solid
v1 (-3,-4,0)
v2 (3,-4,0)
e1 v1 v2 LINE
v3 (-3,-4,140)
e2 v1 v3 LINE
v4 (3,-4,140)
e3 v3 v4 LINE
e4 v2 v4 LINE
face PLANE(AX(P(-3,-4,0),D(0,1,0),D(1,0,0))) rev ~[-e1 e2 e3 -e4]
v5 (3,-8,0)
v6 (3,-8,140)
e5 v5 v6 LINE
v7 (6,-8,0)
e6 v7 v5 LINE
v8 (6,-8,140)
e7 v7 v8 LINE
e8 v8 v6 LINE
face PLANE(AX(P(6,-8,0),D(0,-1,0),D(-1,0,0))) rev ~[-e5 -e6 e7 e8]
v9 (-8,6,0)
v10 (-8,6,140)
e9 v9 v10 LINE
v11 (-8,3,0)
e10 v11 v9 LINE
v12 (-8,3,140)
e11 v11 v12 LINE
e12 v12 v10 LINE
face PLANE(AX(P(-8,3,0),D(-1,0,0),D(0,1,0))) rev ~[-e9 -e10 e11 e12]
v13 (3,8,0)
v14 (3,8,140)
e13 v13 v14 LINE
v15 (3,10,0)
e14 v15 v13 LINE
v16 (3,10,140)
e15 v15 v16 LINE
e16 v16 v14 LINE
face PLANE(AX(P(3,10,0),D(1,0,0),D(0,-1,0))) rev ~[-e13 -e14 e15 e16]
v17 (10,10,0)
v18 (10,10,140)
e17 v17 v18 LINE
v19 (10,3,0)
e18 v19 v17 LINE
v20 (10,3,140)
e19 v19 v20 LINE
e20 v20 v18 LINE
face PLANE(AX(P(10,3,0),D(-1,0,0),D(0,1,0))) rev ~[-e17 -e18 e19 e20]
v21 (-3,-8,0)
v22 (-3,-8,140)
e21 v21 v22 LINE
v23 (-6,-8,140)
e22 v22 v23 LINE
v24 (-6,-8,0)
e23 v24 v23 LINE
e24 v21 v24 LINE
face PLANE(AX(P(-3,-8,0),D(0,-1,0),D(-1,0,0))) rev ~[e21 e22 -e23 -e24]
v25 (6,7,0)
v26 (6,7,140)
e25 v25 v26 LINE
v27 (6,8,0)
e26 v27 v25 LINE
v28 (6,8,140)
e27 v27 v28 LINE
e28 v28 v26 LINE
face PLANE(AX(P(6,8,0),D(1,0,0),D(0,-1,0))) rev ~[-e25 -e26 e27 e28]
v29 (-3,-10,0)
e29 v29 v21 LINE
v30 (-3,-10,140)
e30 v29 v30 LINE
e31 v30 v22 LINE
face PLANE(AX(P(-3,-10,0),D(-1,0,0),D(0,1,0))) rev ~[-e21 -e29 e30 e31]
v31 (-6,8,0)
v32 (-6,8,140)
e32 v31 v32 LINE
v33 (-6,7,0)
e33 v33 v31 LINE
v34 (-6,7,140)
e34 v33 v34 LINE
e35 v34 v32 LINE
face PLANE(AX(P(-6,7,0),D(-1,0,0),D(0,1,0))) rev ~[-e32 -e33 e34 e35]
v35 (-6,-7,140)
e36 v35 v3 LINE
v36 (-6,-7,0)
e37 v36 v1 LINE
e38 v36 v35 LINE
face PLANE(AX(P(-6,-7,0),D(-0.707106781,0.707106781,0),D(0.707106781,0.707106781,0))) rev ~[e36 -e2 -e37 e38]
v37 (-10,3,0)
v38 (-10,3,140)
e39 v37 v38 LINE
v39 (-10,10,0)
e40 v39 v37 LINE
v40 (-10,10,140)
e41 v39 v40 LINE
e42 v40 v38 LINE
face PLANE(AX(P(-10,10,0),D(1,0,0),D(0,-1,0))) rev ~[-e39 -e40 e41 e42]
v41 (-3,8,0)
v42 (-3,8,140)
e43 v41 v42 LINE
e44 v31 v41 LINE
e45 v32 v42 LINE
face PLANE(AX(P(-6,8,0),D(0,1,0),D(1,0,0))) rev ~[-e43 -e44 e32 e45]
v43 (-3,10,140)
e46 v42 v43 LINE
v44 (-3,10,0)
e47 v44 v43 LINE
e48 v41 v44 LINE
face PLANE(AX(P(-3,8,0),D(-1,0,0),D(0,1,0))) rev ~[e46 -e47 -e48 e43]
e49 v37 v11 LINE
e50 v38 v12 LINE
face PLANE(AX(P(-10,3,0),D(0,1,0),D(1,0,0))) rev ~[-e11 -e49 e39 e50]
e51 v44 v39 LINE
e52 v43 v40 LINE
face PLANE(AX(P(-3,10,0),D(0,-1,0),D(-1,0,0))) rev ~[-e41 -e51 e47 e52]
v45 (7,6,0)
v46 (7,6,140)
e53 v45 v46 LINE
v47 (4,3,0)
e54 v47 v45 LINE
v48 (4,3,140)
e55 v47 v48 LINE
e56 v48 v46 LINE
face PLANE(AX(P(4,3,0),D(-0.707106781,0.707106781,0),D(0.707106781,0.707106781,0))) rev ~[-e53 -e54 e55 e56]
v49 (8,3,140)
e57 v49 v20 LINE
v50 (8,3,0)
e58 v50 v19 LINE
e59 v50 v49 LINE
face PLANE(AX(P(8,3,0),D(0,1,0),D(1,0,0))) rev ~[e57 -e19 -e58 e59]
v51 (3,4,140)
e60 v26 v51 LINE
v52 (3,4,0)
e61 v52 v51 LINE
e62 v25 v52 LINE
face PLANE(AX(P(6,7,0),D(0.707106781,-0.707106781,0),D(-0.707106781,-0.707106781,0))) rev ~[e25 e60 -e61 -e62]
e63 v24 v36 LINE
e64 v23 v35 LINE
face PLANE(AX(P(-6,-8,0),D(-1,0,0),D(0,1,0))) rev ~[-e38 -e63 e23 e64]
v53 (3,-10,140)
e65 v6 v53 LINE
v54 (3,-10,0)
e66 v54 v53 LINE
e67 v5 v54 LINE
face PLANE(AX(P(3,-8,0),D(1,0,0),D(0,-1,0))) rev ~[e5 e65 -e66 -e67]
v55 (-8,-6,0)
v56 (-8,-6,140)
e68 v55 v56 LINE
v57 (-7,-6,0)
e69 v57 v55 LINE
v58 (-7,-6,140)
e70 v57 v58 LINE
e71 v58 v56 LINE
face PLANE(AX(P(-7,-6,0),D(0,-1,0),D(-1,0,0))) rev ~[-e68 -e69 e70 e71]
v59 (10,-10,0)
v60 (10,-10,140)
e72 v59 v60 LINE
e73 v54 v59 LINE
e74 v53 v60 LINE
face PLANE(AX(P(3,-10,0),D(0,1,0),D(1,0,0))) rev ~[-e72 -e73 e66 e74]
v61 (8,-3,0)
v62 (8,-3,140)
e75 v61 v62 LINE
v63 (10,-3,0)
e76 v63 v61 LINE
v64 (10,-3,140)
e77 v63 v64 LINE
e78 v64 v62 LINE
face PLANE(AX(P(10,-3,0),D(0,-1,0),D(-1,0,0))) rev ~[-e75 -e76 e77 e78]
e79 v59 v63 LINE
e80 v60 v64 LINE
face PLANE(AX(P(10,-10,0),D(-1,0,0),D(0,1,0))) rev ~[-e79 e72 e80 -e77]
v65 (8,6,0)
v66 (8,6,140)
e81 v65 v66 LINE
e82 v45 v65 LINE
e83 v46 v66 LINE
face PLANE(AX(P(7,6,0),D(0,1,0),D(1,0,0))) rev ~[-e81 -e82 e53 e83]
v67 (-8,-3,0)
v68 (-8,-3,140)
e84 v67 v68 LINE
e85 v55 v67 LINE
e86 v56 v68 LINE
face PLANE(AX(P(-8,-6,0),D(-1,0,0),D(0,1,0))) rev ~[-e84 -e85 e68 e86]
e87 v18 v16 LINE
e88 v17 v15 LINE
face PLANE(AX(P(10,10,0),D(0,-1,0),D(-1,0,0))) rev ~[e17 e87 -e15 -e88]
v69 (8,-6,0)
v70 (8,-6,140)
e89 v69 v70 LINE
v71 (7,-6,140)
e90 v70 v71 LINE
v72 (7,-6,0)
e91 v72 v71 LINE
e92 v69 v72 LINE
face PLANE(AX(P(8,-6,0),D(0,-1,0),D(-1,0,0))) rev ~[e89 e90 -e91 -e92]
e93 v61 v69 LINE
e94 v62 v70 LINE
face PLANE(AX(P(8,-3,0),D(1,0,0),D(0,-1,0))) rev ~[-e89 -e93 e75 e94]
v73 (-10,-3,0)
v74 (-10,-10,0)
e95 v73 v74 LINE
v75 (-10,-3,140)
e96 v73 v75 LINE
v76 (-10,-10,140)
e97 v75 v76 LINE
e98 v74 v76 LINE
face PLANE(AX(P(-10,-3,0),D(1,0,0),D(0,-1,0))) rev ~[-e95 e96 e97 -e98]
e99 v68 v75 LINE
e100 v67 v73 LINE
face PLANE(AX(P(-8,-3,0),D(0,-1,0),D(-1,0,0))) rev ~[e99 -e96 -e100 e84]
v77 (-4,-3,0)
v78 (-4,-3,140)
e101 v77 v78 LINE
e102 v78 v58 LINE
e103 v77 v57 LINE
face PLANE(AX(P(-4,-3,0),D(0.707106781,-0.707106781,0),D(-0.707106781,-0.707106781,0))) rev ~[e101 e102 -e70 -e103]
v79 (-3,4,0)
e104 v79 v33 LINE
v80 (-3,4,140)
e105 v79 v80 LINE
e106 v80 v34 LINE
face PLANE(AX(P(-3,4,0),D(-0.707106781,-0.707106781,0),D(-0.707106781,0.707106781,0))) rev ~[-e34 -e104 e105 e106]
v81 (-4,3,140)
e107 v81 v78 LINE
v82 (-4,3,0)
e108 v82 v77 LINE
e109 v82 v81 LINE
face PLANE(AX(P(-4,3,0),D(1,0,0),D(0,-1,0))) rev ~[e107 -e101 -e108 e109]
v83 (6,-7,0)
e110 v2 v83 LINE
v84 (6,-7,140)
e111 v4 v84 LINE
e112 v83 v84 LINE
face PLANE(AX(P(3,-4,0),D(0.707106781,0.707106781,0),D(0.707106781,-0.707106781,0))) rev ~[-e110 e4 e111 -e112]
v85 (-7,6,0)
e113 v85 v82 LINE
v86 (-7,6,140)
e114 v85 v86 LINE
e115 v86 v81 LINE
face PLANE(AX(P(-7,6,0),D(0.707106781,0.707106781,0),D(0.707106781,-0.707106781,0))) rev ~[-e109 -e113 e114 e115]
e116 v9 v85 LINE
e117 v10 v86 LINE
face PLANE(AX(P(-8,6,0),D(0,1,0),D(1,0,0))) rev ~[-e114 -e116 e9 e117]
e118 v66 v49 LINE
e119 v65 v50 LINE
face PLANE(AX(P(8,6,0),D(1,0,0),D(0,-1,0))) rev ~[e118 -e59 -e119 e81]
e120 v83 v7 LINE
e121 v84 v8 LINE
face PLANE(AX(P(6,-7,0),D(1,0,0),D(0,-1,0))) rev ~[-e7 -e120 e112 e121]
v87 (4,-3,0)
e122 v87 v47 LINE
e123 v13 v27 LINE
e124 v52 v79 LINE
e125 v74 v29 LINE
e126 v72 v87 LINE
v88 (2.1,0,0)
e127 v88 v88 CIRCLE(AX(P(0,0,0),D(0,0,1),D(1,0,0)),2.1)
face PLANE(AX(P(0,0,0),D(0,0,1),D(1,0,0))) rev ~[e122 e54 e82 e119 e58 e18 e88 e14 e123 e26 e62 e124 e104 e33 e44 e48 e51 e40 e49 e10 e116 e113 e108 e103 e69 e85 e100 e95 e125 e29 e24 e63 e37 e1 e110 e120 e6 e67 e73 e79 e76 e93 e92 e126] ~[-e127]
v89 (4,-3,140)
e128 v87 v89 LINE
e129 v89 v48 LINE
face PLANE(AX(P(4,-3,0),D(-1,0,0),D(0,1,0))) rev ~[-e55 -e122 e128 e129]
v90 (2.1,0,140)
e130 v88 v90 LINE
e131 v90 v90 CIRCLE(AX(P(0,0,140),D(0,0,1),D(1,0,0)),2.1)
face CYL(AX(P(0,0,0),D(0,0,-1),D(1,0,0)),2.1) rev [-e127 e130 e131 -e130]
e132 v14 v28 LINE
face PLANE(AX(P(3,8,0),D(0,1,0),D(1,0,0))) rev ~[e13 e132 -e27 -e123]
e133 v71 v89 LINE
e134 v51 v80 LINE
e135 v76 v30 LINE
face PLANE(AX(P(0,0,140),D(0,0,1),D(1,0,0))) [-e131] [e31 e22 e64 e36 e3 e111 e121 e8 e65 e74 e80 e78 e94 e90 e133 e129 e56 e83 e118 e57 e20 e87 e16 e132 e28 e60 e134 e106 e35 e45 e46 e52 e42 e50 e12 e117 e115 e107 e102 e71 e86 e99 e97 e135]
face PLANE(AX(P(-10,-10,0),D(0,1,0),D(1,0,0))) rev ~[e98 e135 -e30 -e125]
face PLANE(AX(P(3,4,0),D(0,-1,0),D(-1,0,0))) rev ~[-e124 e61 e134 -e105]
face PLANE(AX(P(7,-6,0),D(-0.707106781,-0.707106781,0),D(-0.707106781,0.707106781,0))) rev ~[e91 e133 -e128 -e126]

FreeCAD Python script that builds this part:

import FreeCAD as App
import Part
import Sketcher
Q = App.Units.Quantity

doc = App.newDocument("Part")
body = doc.addObject("PartDesign::Body", "Body")

sketch1 = body.newObject("Sketcher::SketchObject", "Sketch")
sketch1.AttachmentSupport = (doc.getObject("XY_Plane"), [""])
sketch1.MapMode = "FlatFace"
sketch1.addGeometry([
    Part.LineSegment(App.Vector(3, 4, 0), App.Vector(-3, 4, 0)),
    Part.LineSegment(App.Vector(-3, 4, 0), App.Vector(-6, 7, 0)),
    Part.LineSegment(App.Vector(-6, 7, 0), App.Vector(-6, 8, 0)),
    Part.LineSegment(App.Vector(-6, 8, 0), App.Vector(-3, 8, 0)),
    Part.LineSegment(App.Vector(-3, 8, 0), App.Vector(-3, 10, 0)),
    Part.LineSegment(App.Vector(-3, 10, 0), App.Vector(-10, 10, 0)),
    Part.LineSegment(App.Vector(-10, 10, 0), App.Vector(-10, 3, 0)),
    Part.LineSegment(App.Vector(-10, 3, 0), App.Vector(-8, 3, 0)),
    Part.LineSegment(App.Vector(-8, 3, 0), App.Vector(-8, 6, 0)),
    Part.LineSegment(App.Vector(-8, 6, 0), App.Vector(-7, 6, 0)),
    Part.LineSegment(App.Vector(-7, 6, 0), App.Vector(-4, 3, 0)),
    Part.LineSegment(App.Vector(-4, 3, 0), App.Vector(-4, -3, 0)),
    Part.LineSegment(App.Vector(-4, -3, 0), App.Vector(-7, -6, 0)),
    Part.LineSegment(App.Vector(-7, -6, 0), App.Vector(-8, -6, 0)),
    Part.LineSegment(App.Vector(-8, -6, 0), App.Vector(-8, -3, 0)),
    Part.LineSegment(App.Vector(-8, -3, 0), App.Vector(-10, -3, 0)),
    Part.LineSegment(App.Vector(-10, -3, 0), App.Vector(-10, -10, 0)),
    Part.LineSegment(App.Vector(-10, -10, 0), App.Vector(-3, -10, 0)),
    Part.LineSegment(App.Vector(-3, -10, 0), App.Vector(-3, -8, 0)),
    Part.LineSegment(App.Vector(-3, -8, 0), App.Vector(-6, -8, 0)),
    Part.LineSegment(App.Vector(-6, -8, 0), App.Vector(-6, -7, 0)),
    Part.LineSegment(App.Vector(-6, -7, 0), App.Vector(-3, -4, 0)),
    Part.LineSegment(App.Vector(-3, -4, 0), App.Vector(3, -4, 0)),
    Part.LineSegment(App.Vector(3, -4, 0), App.Vector(6, -7, 0)),
    Part.LineSegment(App.Vector(6, -7, 0), App.Vector(6, -8, 0)),
    Part.LineSegment(App.Vector(6, -8, 0), App.Vector(3, -8, 0)),
    Part.LineSegment(App.Vector(3, -8, 0), App.Vector(3, -10, 0)),
    Part.LineSegment(App.Vector(3, -10, 0), App.Vector(10, -10, 0)),
    Part.LineSegment(App.Vector(10, -10, 0), App.Vector(10, -3, 0)),
    Part.LineSegment(App.Vector(10, -3, 0), App.Vector(8, -3, 0)),
    Part.LineSegment(App.Vector(8, -3, 0), App.Vector(8, -6, 0)),
    Part.LineSegment(App.Vector(8, -6, 0), App.Vector(7, -6, 0)),
    Part.LineSegment(App.Vector(7, -6, 0), App.Vector(4, -3, 0)),
    Part.LineSegment(App.Vector(4, -3, 0), App.Vector(4, 3, 0)),
    Part.LineSegment(App.Vector(4, 3, 0), App.Vector(7, 6, 0)),
    Part.LineSegment(App.Vector(7, 6, 0), App.Vector(8, 6, 0)),
    Part.LineSegment(App.Vector(8, 6, 0), App.Vector(8, 3, 0)),
    Part.LineSegment(App.Vector(8, 3, 0), App.Vector(10, 3, 0)),
    Part.LineSegment(App.Vector(10, 3, 0), App.Vector(10, 10, 0)),
    Part.LineSegment(App.Vector(10, 10, 0), App.Vector(3, 10, 0)),
    Part.LineSegment(App.Vector(3, 10, 0), App.Vector(3, 8, 0)),
    Part.LineSegment(App.Vector(3, 8, 0), App.Vector(6, 8, 0)),
    Part.LineSegment(App.Vector(6, 8, 0), App.Vector(6, 7, 0)),
    Part.LineSegment(App.Vector(6, 7, 0), App.Vector(3, 4, 0)),
    Part.Circle(App.Vector(0, 0, 0), App.Vector(0, 0, 1), 2.1),
], False)
sketch1.addConstraint([
    Sketcher.Constraint("Coincident", 0, 2, 1, 1),
    Sketcher.Constraint("Coincident", 1, 2, 2, 1),
    Sketcher.Constraint("Coincident", 2, 2, 3, 1),
    Sketcher.Constraint("Coincident", 3, 2, 4, 1),
    Sketcher.Constraint("Coincident", 4, 2, 5, 1),
    Sketcher.Constraint("Coincident", 5, 2, 6, 1),
    Sketcher.Constraint("Coincident", 6, 2, 7, 1),
    Sketcher.Constraint("Coincident", 7, 2, 8, 1),
    Sketcher.Constraint("Coincident", 8, 2, 9, 1),
    Sketcher.Constraint("Coincident", 9, 2, 10, 1),
    Sketcher.Constraint("Coincident", 10, 2, 11, 1),
    Sketcher.Constraint("Coincident", 11, 2, 12, 1),
    Sketcher.Constraint("Coincident", 12, 2, 13, 1),
    Sketcher.Constraint("Coincident", 13, 2, 14, 1),
    Sketcher.Constraint("Coincident", 14, 2, 15, 1),
    Sketcher.Constraint("Coincident", 15, 2, 16, 1),
    Sketcher.Constraint("Coincident", 16, 2, 17, 1),
    Sketcher.Constraint("Coincident", 17, 2, 18, 1),
    Sketcher.Constraint("Coincident", 18, 2, 19, 1),
    Sketcher.Constraint("Coincident", 19, 2, 20, 1),
    Sketcher.Constraint("Coincident", 20, 2, 21, 1),
    Sketcher.Constraint("Coincident", 21, 2, 22, 1),
    Sketcher.Constraint("Coincident", 22, 2, 23, 1),
    Sketcher.Constraint("Coincident", 23, 2, 24, 1),
    Sketcher.Constraint("Coincident", 24, 2, 25, 1),
    Sketcher.Constraint("Coincident", 25, 2, 26, 1),
    Sketcher.Constraint("Coincident", 26, 2, 27, 1),
    Sketcher.Constraint("Coincident", 27, 2, 28, 1),
    Sketcher.Constraint("Coincident", 28, 2, 29, 1),
    Sketcher.Constraint("Coincident", 29, 2, 30, 1),
    Sketcher.Constraint("Coincident", 30, 2, 31, 1),
    Sketcher.Constraint("Coincident", 31, 2, 32, 1),
    Sketcher.Constraint("Coincident", 32, 2, 33, 1),
    Sketcher.Constraint("Coincident", 33, 2, 34, 1),
    Sketcher.Constraint("Coincident", 34, 2, 35, 1),
    Sketcher.Constraint("Coincident", 35, 2, 36, 1),
    Sketcher.Constraint("Coincident", 36, 2, 37, 1),
    Sketcher.Constraint("Coincident", 37, 2, 38, 1),
    Sketcher.Constraint("Coincident", 38, 2, 39, 1),
    Sketcher.Constraint("Coincident", 39, 2, 40, 1),
    Sketcher.Constraint("Coincident", 40, 2, 41, 1),
    Sketcher.Constraint("Coincident", 41, 2, 42, 1),
    Sketcher.Constraint("Coincident", 42, 2, 43, 1),
    Sketcher.Constraint("Coincident", 43, 2, 0, 1),
    Sketcher.Constraint("Horizontal", 0),
    Sketcher.Constraint("Vertical", 2),
    Sketcher.Constraint("Horizontal", 3),
    Sketcher.Constraint("Vertical", 4),
    Sketcher.Constraint("Horizontal", 5),
    Sketcher.Constraint("Vertical", 6),
    Sketcher.Constraint("Horizontal", 7),
    Sketcher.Constraint("Vertical", 8),
    Sketcher.Constraint("Horizontal", 9),
    Sketcher.Constraint("Vertical", 11),
    Sketcher.Constraint("Horizontal", 13),
    Sketcher.Constraint("Vertical", 14),
    Sketcher.Constraint("Horizontal", 15),
    Sketcher.Constraint("Vertical", 16),
    Sketcher.Constraint("Horizontal", 17),
    Sketcher.Constraint("Vertical", 18),
    Sketcher.Constraint("Horizontal", 19),
    Sketcher.Constraint("Vertical", 20),
    Sketcher.Constraint("Horizontal", 22),
    Sketcher.Constraint("Vertical", 24),
    Sketcher.Constraint("Horizontal", 25),
    Sketcher.Constraint("Vertical", 26),
    Sketcher.Constraint("Horizontal", 27),
    Sketcher.Constraint("Vertical", 28),
    Sketcher.Constraint("Horizontal", 29),
    Sketcher.Constraint("Vertical", 30),
    Sketcher.Constraint("Horizontal", 31),
    Sketcher.Constraint("Vertical", 33),
    Sketcher.Constraint("Horizontal", 35),
    Sketcher.Constraint("Vertical", 36),
    Sketcher.Constraint("Horizontal", 37),
    Sketcher.Constraint("Vertical", 38),
    Sketcher.Constraint("Horizontal", 39),
    Sketcher.Constraint("Vertical", 40),
    Sketcher.Constraint("Horizontal", 41),
    Sketcher.Constraint("Vertical", 42),
    Sketcher.Constraint("Coincident", 44, 3, -1, 1),
    Sketcher.Constraint("Symmetric", 0, 2, 22, 2, -1, 1),
    Sketcher.Constraint("Symmetric", 1, 2, 23, 2, -1, 1),
    Sketcher.Constraint("Symmetric", 3, 2, 25, 2, -1, 1),
    Sketcher.Constraint("Symmetric", 5, 2, 27, 2, -1, 1),
    Sketcher.Constraint("Symmetric", 7, 2, 29, 2, -1, 1),
    Sketcher.Constraint("Symmetric", 9, 2, 31, 2, -1, 1),
    Sketcher.Constraint("Symmetric", 10, 2, 32, 2, -1, 1),
    Sketcher.Constraint("Symmetric", 12, 2, 34, 2, -1, 1),
    Sketcher.Constraint("Symmetric", 14, 2, 36, 2, -1, 1),
    Sketcher.Constraint("Symmetric", 16, 2, 38, 2, -1, 1),
    Sketcher.Constraint("Symmetric", 18, 2, 40, 2, -1, 1),
    Sketcher.Constraint("Symmetric", 20, 2, 42, 2, -1, 1),
    Sketcher.Constraint("Symmetric", 20, 2, 23, 2, -2),
    Sketcher.Constraint("Symmetric", 18, 2, 25, 2, -2),
    Sketcher.Constraint("Symmetric", 16, 2, 27, 2, -2),
    Sketcher.Constraint("Symmetric", 14, 2, 29, 2, -2),
    Sketcher.Constraint("Symmetric", 12, 2, 31, 2, -2),
    Sketcher.Constraint("Parallel", 1, 10),
    Sketcher.Constraint("Perpendicular", 10, 12),
    Sketcher.Constraint("Parallel", 12, 21),
    Sketcher.Constraint("Perpendicular", 32, 34),
    Sketcher.Constraint("Parallel", 34, 43),
    Sketcher.Constraint("Horizontal", 7, 2, 10, 2),
    Sketcher.Constraint("Horizontal", 11, 2, 14, 2),
    Sketcher.Constraint("Vertical", 0, 2, 3, 2),
    Sketcher.Constraint("Equal", 35, 2),
    Sketcher.Constraint("Equal", 37, 4),
    Sketcher.Constraint("Equal", 39, 6),
    Sketcher.Constraint("Equal", 41, 8),
    Sketcher.Constraint("Equal", 22, 11),
    Sketcher.Constraint("Diameter", 44, Q("4.2 mm")),
    Sketcher.Constraint("DistanceX", 0, 2, 0, 1, Q("6 mm")),
    Sketcher.Constraint("DistanceX", 3, 1, 3, 2, Q("3 mm")),
    Sketcher.Constraint("DistanceX", 5, 2, 5, 1, Q("7 mm")),
    Sketcher.Constraint("DistanceX", 7, 1, 7, 2, Q("2 mm")),
    Sketcher.Constraint("DistanceX", 9, 1, 9, 2, Q("1 mm")),
])
pad1 = body.newObject("PartDesign::Pad", "Pad")
pad1.Profile = sketch1
pad1.Length = 140

doc.recompute()
